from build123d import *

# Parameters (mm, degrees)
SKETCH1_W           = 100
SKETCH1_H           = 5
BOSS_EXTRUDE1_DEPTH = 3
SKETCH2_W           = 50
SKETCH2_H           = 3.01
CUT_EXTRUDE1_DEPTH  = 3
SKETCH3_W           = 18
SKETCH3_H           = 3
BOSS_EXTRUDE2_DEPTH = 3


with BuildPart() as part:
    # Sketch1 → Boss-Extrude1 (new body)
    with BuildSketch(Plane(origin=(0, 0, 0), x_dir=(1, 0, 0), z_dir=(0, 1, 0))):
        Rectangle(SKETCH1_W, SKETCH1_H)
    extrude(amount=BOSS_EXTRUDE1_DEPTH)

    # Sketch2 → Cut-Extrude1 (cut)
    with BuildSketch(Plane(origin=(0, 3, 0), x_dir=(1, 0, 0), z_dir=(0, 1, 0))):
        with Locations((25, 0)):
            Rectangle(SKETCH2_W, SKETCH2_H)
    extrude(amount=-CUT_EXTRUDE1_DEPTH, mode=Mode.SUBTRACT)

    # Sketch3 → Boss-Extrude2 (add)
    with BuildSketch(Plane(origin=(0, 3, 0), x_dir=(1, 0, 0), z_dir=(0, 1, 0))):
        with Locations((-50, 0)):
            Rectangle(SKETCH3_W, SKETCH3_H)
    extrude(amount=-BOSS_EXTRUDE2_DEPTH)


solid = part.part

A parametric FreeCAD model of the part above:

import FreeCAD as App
import Part
import Sketcher

V = App.Vector

doc = App.newDocument("Part")
body = doc.addObject("PartDesign::Body", "Body")

# Sketch on XZ plane
sketch1 = body.newObject("Sketcher::SketchObject", "Sketch")
sketch1.AttachmentSupport = (doc.getObject("XZ_Plane"), [""])
sketch1.MapMode = "FlatFace"
sketch1.addGeometry([
    Part.LineSegment(V(-50, -2.5, 0), V(-50, 2.5, 0)),
    Part.LineSegment(V(-50, 2.5, 0), V(50, 2.5, 0)),
    Part.LineSegment(V(50, 2.5, 0), V(50, -2.5, 0)),
    Part.LineSegment(V(50, -2.5, 0), V(-50, -2.5, 0)),
], False)
sketch1.addConstraint([
    Sketcher.Constraint("Coincident", 0, 2, 1, 1),
    Sketcher.Constraint("Coincident", 1, 2, 2, 1),
    Sketcher.Constraint("Coincident", 2, 2, 3, 1),
    Sketcher.Constraint("Coincident", 3, 2, 0, 1),
    Sketcher.Constraint("Vertical", 0),
    Sketcher.Constraint("Horizontal", 1),
    Sketcher.Constraint("Vertical", 2),
    Sketcher.Constraint("Horizontal", 3),
    Sketcher.Constraint("Symmetric", 0, 2, 2, 2, -1, 1),
    Sketcher.Constraint("DistanceX", 1, 1, 1, 2, 100.0),
    Sketcher.Constraint("DistanceY", 0, 1, 0, 2, 5.0),
])
pad1 = body.newObject("PartDesign::Pad", "Pad")
pad1.Profile = sketch1
pad1.Length = 3
pad1.Reversed = True

# Sketch on XZ plane
sketch2 = body.newObject("Sketcher::SketchObject", "Sketch001")
sketch2.AttachmentSupport = (doc.getObject("XZ_Plane"), [""])
sketch2.MapMode = "FlatFace"
sketch2.AttachmentOffset = App.Placement(V(0, 0, -3), App.Rotation())
sketch2.addGeometry([
    Part.LineSegment(V(0, -1.505, 0), V(0, 1.505, 0)),
    Part.LineSegment(V(0, 1.505, 0), V(50, 1.505, 0)),
    Part.LineSegment(V(50, 1.505, 0), V(50, -1.505, 0)),
    Part.LineSegment(V(50, -1.505, 0), V(0, -1.505, 0)),
], False)
sketch2.addConstraint([
    Sketcher.Constraint("Coincident", 0, 2, 1, 1),
    Sketcher.Constraint("Coincident", 1, 2, 2, 1),
    Sketcher.Constraint("Coincident", 2, 2, 3, 1),
    Sketcher.Constraint("Coincident", 3, 2, 0, 1),
    Sketcher.Constraint("Vertical", 0),
    Sketcher.Constraint("Horizontal", 1),
    Sketcher.Constraint("Vertical", 2),
    Sketcher.Constraint("Horizontal", 3),
    Sketcher.Constraint("Symmetric", 0, 2, 3, 2, -1, 1),
    Sketcher.Constraint("DistanceX", 1, 1, 1, 2, 50.0),
    Sketcher.Constraint("DistanceY", 0, 1, 0, 2, 3.01),
])
pocket1 = body.newObject("PartDesign::Pocket", "Pocket")
pocket1.Profile = sketch2
pocket1.Length = 3
pocket1.Reversed = True

# Sketch on XZ plane
sketch3 = body.newObject("Sketcher::SketchObject", "Sketch002")
sketch3.AttachmentSupport = (doc.getObject("XZ_Plane"), [""])
sketch3.MapMode = "FlatFace"
sketch3.AttachmentOffset = App.Placement(V(0, 0, -3), App.Rotation())
sketch3.addGeometry([
    Part.LineSegment(V(-59, -1.5, 0), V(-59, 1.5, 0)),
    Part.LineSegment(V(-59, 1.5, 0), V(-41, 1.5, 0)),
    Part.LineSegment(V(-41, 1.5, 0), V(-41, -1.5, 0)),
    Part.LineSegment(V(-41, -1.5, 0), V(-59, -1.5, 0)),
], False)
sketch3.addConstraint([
    Sketcher.Constraint("Coincident", 0, 2, 1, 1),
    Sketcher.Constraint("Coincident", 1, 2, 2, 1),
    Sketcher.Constraint("Coincident", 2, 2, 3, 1),
    Sketcher.Constraint("Coincident", 3, 2, 0, 1),
    Sketcher.Constraint("Vertical", 0),
    Sketcher.Constraint("Horizontal", 1),
    Sketcher.Constraint("Vertical", 2),
    Sketcher.Constraint("Horizontal", 3),
    Sketcher.Constraint("DistanceX", 1, 1, 1, 2, 18.0),
    Sketcher.Constraint("DistanceY", 0, 1, 0, 2, 3.0),
    Sketcher.Constraint("DistanceX", 0, 2, -1, 1, 59.0),
    Sketcher.Constraint("DistanceY", -1, 1, 0, 2, 1.5),
])
pad2 = body.newObject("PartDesign::Pad", "Pad001")
pad2.Profile = sketch3
pad2.Length = 3

doc.recompute()
